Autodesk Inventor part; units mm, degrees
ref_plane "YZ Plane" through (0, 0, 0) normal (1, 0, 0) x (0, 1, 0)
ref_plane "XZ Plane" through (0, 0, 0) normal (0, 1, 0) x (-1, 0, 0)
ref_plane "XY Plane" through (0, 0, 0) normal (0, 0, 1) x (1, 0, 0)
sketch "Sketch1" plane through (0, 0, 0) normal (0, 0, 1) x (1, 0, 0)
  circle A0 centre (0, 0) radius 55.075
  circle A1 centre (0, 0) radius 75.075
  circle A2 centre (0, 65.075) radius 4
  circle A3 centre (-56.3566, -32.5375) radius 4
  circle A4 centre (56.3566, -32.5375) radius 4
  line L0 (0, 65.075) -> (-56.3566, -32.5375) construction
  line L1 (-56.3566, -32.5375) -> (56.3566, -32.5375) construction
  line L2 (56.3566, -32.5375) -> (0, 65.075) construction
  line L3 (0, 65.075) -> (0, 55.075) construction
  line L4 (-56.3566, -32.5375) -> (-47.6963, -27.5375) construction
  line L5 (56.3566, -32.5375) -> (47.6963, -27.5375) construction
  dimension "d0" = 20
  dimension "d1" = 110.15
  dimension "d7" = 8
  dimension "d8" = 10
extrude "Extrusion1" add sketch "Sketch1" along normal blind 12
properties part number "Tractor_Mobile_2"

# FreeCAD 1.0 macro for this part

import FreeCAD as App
import Part
import Sketcher

doc = App.newDocument("Part")
body = doc.addObject("PartDesign::Body", "Body")

# Sketch on XY plane
sketch1 = body.newObject("Sketcher::SketchObject", "Sketch")
sketch1.AttachmentSupport = (doc.getObject("XY_Plane"), [""])
sketch1.MapMode = "FlatFace"
sketch1.addGeometry(Part.Circle(App.Vector(0, 0, 0), App.Vector(0, 0, 1), 75.1), False)
sketch1.addGeometry(Part.Circle(App.Vector(-56.4, -32.5, 0), App.Vector(0, 0, 1), 4), False)
sketch1.addGeometry(Part.Circle(App.Vector(56.4, -32.5, 0), App.Vector(0, 0, 1), 4), False)
sketch1.addGeometry(Part.Circle(App.Vector(0, 0, 0), App.Vector(0, 0, 1), 55.1), False)
sketch1.addGeometry(Part.Circle(App.Vector(0, 65.1, 0), App.Vector(0, 0, 1), 4), False)
sketch1.addConstraint(Sketcher.Constraint("Coincident", 0, 3, -1, 1))
sketch1.addConstraint(Sketcher.Constraint("Coincident", 3, 3, -1, 1))
sketch1.addConstraint(Sketcher.Constraint("Equal", 1, 2))
sketch1.addConstraint(Sketcher.Constraint("Equal", 2, 4))
sketch1.addConstraint(Sketcher.Constraint("Symmetric", 1, 3, 2, 3, -2))
sketch1.addConstraint(Sketcher.Constraint("PointOnObject", 4, 3, -2))
sketch1.addConstraint(Sketcher.Constraint("Diameter", 1, 8.0))
sketch1.addConstraint(Sketcher.Constraint("Diameter", 3, 110.15))
sketch1.addConstraint(Sketcher.Constraint("Diameter", 0, 150.15))
sketch1.addConstraint(Sketcher.Constraint("DistanceY", -1, 1, 4, 3, 65.075))
sketch1.addConstraint(Sketcher.Constraint("DistanceX", 1, 3, -1, 1, 56.3566))
sketch1.addConstraint(Sketcher.Constraint("DistanceY", 1, 3, -1, 1, 32.5375))
pad1 = body.newObject("PartDesign::Pad", "Pad")
pad1.Profile = sketch1
pad1.Length = 12

doc.recompute()
